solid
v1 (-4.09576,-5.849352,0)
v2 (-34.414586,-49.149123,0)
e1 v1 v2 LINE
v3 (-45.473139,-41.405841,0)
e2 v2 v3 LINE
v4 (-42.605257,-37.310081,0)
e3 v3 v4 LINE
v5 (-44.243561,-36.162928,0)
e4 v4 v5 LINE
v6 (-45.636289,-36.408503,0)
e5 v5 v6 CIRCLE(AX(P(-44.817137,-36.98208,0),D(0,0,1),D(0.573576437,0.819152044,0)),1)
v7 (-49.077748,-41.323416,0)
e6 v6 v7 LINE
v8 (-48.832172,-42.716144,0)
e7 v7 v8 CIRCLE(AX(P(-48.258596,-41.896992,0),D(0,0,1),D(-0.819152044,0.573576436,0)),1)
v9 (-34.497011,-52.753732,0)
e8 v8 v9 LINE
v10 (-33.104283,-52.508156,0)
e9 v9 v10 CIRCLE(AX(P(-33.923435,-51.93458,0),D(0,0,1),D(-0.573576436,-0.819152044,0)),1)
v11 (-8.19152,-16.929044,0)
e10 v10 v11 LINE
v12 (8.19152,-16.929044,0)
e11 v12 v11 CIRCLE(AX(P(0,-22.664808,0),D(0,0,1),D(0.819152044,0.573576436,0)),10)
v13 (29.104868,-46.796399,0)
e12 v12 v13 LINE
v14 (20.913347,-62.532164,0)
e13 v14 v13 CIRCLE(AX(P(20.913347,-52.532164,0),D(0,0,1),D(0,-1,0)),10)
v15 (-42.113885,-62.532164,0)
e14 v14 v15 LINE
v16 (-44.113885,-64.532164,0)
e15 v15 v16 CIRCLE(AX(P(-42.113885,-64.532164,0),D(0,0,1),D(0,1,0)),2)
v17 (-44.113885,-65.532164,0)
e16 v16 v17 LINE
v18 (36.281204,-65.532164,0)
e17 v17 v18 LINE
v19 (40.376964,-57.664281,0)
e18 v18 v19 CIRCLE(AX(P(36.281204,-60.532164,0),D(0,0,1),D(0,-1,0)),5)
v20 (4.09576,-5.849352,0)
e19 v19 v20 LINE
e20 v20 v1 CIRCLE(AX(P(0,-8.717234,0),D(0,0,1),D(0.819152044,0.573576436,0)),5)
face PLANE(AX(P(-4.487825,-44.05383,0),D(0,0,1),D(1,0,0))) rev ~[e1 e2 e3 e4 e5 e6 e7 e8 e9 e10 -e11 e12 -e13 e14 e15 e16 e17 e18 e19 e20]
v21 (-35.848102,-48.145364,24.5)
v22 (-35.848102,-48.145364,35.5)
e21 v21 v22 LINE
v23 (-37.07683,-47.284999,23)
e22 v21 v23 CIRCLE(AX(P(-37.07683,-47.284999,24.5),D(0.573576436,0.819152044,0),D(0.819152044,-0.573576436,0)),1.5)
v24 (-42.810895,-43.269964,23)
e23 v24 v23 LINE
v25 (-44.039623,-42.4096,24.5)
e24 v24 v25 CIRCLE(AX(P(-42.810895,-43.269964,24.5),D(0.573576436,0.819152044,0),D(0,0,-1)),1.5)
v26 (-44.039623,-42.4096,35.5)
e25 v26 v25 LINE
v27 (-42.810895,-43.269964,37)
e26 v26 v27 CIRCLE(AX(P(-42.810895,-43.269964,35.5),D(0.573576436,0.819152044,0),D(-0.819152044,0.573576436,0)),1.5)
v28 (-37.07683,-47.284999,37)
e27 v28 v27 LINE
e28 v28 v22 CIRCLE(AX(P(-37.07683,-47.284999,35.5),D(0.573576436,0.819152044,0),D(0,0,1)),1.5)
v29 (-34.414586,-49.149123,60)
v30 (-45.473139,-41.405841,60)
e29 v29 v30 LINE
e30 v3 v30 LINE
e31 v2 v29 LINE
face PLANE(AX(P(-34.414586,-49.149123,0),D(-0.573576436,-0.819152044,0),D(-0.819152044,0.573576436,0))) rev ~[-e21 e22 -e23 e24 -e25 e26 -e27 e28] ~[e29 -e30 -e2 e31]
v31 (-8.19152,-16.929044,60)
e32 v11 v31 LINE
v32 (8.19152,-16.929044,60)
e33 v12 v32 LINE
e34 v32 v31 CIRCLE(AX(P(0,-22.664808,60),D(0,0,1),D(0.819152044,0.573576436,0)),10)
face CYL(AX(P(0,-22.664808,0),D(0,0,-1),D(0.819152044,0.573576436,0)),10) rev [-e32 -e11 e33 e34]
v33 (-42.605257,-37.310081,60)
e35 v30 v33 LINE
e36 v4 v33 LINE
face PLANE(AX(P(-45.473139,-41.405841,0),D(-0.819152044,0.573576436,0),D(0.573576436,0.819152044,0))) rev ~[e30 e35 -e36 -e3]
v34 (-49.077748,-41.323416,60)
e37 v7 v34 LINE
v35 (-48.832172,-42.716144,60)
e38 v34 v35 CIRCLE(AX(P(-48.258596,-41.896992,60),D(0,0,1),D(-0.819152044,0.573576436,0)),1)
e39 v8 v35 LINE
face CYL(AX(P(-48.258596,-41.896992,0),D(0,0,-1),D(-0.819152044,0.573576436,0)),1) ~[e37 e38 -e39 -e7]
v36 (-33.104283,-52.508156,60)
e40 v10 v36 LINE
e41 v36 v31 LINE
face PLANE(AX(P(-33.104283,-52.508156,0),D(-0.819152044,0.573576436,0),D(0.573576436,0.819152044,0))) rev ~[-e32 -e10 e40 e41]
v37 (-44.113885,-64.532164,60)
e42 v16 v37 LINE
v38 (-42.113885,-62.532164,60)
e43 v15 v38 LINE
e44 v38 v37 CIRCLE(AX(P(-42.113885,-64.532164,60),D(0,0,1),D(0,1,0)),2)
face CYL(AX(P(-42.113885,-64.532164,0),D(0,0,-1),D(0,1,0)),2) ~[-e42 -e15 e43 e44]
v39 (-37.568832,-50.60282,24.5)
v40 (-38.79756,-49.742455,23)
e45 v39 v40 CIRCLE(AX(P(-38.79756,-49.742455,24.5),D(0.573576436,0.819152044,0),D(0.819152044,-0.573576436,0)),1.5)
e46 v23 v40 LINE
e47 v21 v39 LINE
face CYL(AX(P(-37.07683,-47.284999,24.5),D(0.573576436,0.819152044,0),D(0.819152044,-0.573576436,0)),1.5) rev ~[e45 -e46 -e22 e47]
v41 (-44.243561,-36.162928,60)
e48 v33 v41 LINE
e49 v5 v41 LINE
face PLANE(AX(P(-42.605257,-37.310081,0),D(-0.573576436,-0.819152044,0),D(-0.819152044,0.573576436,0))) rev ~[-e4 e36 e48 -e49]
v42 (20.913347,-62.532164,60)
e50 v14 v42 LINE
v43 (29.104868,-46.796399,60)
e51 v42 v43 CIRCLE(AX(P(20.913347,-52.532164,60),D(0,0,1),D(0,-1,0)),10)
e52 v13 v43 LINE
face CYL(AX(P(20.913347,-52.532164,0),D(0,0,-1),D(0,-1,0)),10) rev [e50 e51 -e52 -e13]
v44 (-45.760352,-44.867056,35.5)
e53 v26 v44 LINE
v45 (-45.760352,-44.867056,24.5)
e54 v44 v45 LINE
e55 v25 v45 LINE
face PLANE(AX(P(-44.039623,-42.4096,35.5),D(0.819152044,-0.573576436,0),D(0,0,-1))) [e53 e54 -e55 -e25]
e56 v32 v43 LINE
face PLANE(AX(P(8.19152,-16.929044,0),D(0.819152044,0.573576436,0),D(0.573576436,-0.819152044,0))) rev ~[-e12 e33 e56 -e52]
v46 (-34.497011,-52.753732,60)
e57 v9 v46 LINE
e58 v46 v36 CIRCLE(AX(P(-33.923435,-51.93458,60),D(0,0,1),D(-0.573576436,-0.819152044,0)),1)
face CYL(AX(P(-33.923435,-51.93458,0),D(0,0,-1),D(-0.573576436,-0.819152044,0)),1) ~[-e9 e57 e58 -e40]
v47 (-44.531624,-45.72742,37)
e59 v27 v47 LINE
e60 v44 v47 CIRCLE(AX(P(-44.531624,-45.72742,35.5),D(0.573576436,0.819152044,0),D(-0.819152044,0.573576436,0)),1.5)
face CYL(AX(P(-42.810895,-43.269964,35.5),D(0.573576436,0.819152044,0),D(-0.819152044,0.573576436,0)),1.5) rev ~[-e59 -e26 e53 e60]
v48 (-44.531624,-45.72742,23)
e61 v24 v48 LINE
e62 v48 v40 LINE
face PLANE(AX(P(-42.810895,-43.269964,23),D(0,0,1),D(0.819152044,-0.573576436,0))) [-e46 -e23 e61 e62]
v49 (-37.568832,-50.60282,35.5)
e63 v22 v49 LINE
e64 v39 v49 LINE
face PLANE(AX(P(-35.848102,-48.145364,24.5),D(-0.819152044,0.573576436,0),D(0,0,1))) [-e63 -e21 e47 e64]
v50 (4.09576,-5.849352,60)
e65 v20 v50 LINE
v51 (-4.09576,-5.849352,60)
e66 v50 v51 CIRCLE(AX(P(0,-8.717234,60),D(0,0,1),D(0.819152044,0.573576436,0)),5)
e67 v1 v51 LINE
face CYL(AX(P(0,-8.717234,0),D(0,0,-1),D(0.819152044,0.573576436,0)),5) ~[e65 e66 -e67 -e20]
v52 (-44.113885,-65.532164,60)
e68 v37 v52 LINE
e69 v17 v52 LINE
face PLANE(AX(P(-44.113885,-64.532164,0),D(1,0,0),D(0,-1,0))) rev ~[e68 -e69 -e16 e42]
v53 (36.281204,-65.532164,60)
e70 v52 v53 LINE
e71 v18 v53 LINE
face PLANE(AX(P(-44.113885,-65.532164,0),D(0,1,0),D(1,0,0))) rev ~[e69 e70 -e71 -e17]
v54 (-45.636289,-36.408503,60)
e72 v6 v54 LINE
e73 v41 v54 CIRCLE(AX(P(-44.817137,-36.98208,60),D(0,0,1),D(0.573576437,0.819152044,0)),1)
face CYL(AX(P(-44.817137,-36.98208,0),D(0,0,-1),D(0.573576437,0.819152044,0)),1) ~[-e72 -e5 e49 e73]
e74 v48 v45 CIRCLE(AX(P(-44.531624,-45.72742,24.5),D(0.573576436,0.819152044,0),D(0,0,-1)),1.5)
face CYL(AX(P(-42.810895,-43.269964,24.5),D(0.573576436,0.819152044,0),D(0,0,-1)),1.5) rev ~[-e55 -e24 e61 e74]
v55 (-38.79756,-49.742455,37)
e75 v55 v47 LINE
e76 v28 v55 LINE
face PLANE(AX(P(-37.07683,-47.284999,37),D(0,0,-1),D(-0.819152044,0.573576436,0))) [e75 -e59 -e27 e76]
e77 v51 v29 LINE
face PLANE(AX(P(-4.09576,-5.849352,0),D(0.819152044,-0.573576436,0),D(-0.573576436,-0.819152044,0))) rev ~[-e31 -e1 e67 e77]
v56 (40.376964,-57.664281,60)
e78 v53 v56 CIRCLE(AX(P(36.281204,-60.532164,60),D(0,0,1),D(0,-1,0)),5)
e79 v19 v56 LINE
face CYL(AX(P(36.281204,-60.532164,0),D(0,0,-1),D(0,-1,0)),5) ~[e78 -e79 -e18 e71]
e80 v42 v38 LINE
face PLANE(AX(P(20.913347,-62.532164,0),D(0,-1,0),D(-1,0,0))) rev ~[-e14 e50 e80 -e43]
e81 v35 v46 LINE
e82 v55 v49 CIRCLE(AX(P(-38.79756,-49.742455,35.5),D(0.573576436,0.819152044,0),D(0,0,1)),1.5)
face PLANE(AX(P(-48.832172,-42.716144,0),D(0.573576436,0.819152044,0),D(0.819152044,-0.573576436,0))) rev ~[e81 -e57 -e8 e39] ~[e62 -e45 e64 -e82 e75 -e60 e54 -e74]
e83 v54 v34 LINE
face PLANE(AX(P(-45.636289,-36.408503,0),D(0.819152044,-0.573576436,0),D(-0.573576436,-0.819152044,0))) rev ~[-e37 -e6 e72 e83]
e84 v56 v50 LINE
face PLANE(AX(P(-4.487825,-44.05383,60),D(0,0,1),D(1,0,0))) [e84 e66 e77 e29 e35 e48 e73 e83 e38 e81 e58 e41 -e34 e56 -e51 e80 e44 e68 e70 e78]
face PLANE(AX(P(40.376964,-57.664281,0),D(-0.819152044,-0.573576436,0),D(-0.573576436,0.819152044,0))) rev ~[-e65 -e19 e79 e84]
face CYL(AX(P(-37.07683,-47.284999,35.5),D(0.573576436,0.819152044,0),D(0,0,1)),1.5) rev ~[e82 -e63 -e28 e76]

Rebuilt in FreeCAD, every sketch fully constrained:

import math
import FreeCAD as App
import Part
import Sketcher
from FreeCAD import Vector
Q = App.Units.Quantity

doc = App.newDocument("Part")
body = doc.addObject("PartDesign::Body", "Body")

# Sketch on XY plane
sketch1 = body.newObject("Sketcher::SketchObject", "Sketch")
sketch1.AttachmentSupport = (doc.getObject("XY_Plane"), [""])
sketch1.MapMode = "FlatFace"
sketch1.addGeometry([
    Part.LineSegment(Vector(-4.1, -5.8, 0), Vector(-34.4, -49.1, 0)),  # 0
    Part.LineSegment(Vector(-34.4, -49.1, 0), Vector(-45.5, -41.4, 0)),  # 1
    Part.LineSegment(Vector(-45.5, -41.4, 0), Vector(-42.6, -37.3, 0)),  # 2
    Part.LineSegment(Vector(-42.6, -37.3, 0), Vector(-44.2, -36.2, 0)),  # 3
    Part.ArcOfCircle(Part.Circle(Vector(-44.8, -37, 0), Vector(0, 0, 1), 1), math.radians(55), math.radians(145)),  # 4
    Part.LineSegment(Vector(-45.6, -36.4, 0), Vector(-49.1, -41.3, 0)),  # 5
    Part.ArcOfCircle(Part.Circle(Vector(-48.3, -41.9, 0), Vector(0, 0, 1), 1), math.radians(145), math.radians(235)),  # 6
    Part.LineSegment(Vector(-48.8, -42.7, 0), Vector(-34.5, -52.8, 0)),  # 7
    Part.ArcOfCircle(Part.Circle(Vector(-33.9, -51.9, 0), Vector(0, 0, 1), 1), math.radians(-125), math.radians(-35)),  # 8
    Part.LineSegment(Vector(-33.1, -52.5, 0), Vector(-8.2, -16.9, 0)),  # 9
    Part.ArcOfCircle(Part.Circle(Vector(0, -22.7, 0), Vector(0, 0, 1), 10), math.radians(35), math.radians(145)),  # 10
    Part.LineSegment(Vector(8.2, -16.9, 0), Vector(29.1, -46.8, 0)),  # 11
    Part.ArcOfCircle(Part.Circle(Vector(20.9, -52.5, 0), Vector(0, 0, 1), 10), math.radians(-90), math.radians(35)),  # 12
    Part.LineSegment(Vector(20.9, -62.5, 0), Vector(-42.1, -62.5, 0)),  # 13
    Part.ArcOfCircle(Part.Circle(Vector(-42.1, -64.5, 0), Vector(0, 0, 1), 2), math.radians(90), math.radians(180)),  # 14
    Part.LineSegment(Vector(-44.1, -64.5, 0), Vector(-44.1, -65.5, 0)),  # 15
    Part.LineSegment(Vector(-44.1, -65.5, 0), Vector(36.3, -65.5, 0)),  # 16
    Part.ArcOfCircle(Part.Circle(Vector(36.3, -60.5, 0), Vector(0, 0, 1), 5), math.radians(-90), math.radians(35)),  # 17
    Part.LineSegment(Vector(40.4, -57.7, 0), Vector(4.1, -5.8, 0)),  # 18
    Part.ArcOfCircle(Part.Circle(Vector(0, -8.7, 0), Vector(0, 0, 1), 5), math.radians(35), math.radians(145)),  # 19
], False)
sketch1.addConstraint([
    Sketcher.Constraint("Coincident", 0, 2, 1, 1),
    Sketcher.Constraint("Coincident", 1, 2, 2, 1),
    Sketcher.Constraint("Coincident", 2, 2, 3, 1),
    Sketcher.Constraint("Tangent", 3, 2, 4, 1),
    Sketcher.Constraint("Tangent", 4, 2, 5, 1),
    Sketcher.Constraint("Tangent", 5, 2, 6, 1),
    Sketcher.Constraint("Tangent", 6, 2, 7, 1),
    Sketcher.Constraint("Tangent", 7, 2, 8, 1),
    Sketcher.Constraint("Tangent", 8, 2, 9, 1),
    Sketcher.Constraint("Tangent", 9, 2, 10, 2),
    Sketcher.Constraint("Tangent", 10, 1, 11, 1),
    Sketcher.Constraint("Tangent", 11, 2, 12, 2),
    Sketcher.Constraint("Tangent", 12, 1, 13, 1),
    Sketcher.Constraint("Tangent", 13, 2, 14, 1),
    Sketcher.Constraint("Tangent", 14, 2, 15, 1),
    Sketcher.Constraint("Coincident", 15, 2, 16, 1),
    Sketcher.Constraint("Tangent", 16, 2, 17, 1),
    Sketcher.Constraint("Tangent", 17, 2, 18, 1),
    Sketcher.Constraint("Tangent", 18, 2, 19, 1),
    Sketcher.Constraint("Tangent", 19, 2, 0, 1),
    Sketcher.Constraint("Horizontal", 13),
    Sketcher.Constraint("Vertical", 15),
    Sketcher.Constraint("Horizontal", 16),
    Sketcher.Constraint("Equal", 4, 6),
    Sketcher.Constraint("Equal", 6, 8),
    Sketcher.Constraint("Equal", 10, 12),
    Sketcher.Constraint("Equal", 17, 19),
    Sketcher.Constraint("Symmetric", 9, 2, 10, 1, -2),
    Sketcher.Constraint("Symmetric", 18, 2, 19, 2, -2),
    Sketcher.Constraint("Perpendicular", 0, 1),
    Sketcher.Constraint("Perpendicular", 1, 2),
    Sketcher.Constraint("Perpendicular", 2, 3),
    Sketcher.Constraint("Perpendicular", 3, 5),
    Sketcher.Constraint("Perpendicular", 5, 7),
    Sketcher.Constraint("Perpendicular", 7, 9),
    Sketcher.Constraint("Radius", 4, Q("1 mm")),
    Sketcher.Constraint("Radius", 10, Q("10 mm")),
    Sketcher.Constraint("Radius", 14, Q("2 mm")),
    Sketcher.Constraint("Radius", 17, Q("5 mm")),
    Sketcher.Constraint("DistanceY", 15, 2, 15, 1, Q("1 mm")),
    Sketcher.Constraint("Angle", 0, Q("-125 deg")),
    Sketcher.Constraint("Distance", 2, Q("5 mm")),
    Sketcher.Constraint("Distance", 3, Q("2 mm")),
    Sketcher.Constraint("Distance", 5, Q("6 mm")),
    Sketcher.Constraint("Distance", 1, Q("13.5 mm")),
    Sketcher.Constraint("Distance", 7, Q("17.5 mm")),
    Sketcher.Constraint("DistanceX", 16, 1, 16, 2, Q("80.395089 mm")),
    Sketcher.Constraint("DistanceY", 11, 2, -1, 1, Q("46.796399 mm")),
    Sketcher.Constraint("DistanceX", 14, 3, 0, 2, Q("7.699299 mm")),
    Sketcher.Constraint("Distance", 0, Q("52.85926 mm")),
])
pad1 = body.newObject("PartDesign::Pad", "Pad")
pad1.Profile = sketch1
pad1.Length = 60

# Sketch on an angled plane
sketch2 = body.newObject("Sketcher::SketchObject", "Sketch001")
sketch2.Placement = App.Placement(Vector(-34.414586, -49.149123, 0), App.Rotation(Vector(-0.819152044, 0.573576436, 0), Vector(0, 0, 0.999999999), Vector(0.573576436, 0.819152044, 0), "ZXY"))
sketch2.addGeometry([
    Part.LineSegment(Vector(1.7, 35.5, 0), Vector(1.7, 24.5, 0)),  # 0
    Part.ArcOfCircle(Part.Circle(Vector(3.2, 24.5, 0), Vector(0, 0, 1), 1.5), math.radians(180), math.radians(270)),  # 1
    Part.LineSegment(Vector(3.2, 23, 0), Vector(10.2, 23, 0)),  # 2
    Part.ArcOfCircle(Part.Circle(Vector(10.2, 24.5, 0), Vector(0, 0, 1), 1.5), math.radians(-90), math.radians(0)),  # 3
    Part.LineSegment(Vector(11.7, 24.5, 0), Vector(11.7, 35.5, 0)),  # 4
    Part.ArcOfCircle(Part.Circle(Vector(10.2, 35.5, 0), Vector(0, 0, 1), 1.5), math.radians(0), math.radians(90)),  # 5
    Part.LineSegment(Vector(10.2, 37, 0), Vector(3.2, 37, 0)),  # 6
    Part.ArcOfCircle(Part.Circle(Vector(3.2, 35.5, 0), Vector(0, 0, 1), 1.5), math.radians(90), math.radians(180)),  # 7
], False)
sketch2.addConstraint([
    Sketcher.Constraint("Tangent", 0, 2, 1, 1),
    Sketcher.Constraint("Tangent", 1, 2, 2, 1),
    Sketcher.Constraint("Tangent", 2, 2, 3, 1),
    Sketcher.Constraint("Tangent", 3, 2, 4, 1),
    Sketcher.Constraint("Tangent", 4, 2, 5, 1),
    Sketcher.Constraint("Tangent", 5, 2, 6, 1),
    Sketcher.Constraint("Tangent", 6, 2, 7, 1),
    Sketcher.Constraint("Tangent", 7, 2, 0, 1),
    Sketcher.Constraint("Vertical", 0),
    Sketcher.Constraint("Horizontal", 2),
    Sketcher.Constraint("Vertical", 4),
    Sketcher.Constraint("Horizontal", 6),
    Sketcher.Constraint("Equal", 1, 3),
    Sketcher.Constraint("Equal", 3, 5),
    Sketcher.Constraint("Equal", 5, 7),
    Sketcher.Constraint("Radius", 1, Q("1.5 mm")),
    Sketcher.Constraint("DistanceX", 2, 1, 2, 2, Q("7 mm")),
    Sketcher.Constraint("DistanceY", 0, 2, 0, 1, Q("11 mm")),
    Sketcher.Constraint("DistanceY", -1, 1, 1, 2, Q("23 mm")),
    Sketcher.Constraint("DistanceX", -1, 1, 1, 3, Q("3.25 mm")),
])
pocket1 = body.newObject("PartDesign::Pocket", "Pocket")
pocket1.Profile = sketch2
pocket1.Type = "ThroughAll"

doc.recompute()
